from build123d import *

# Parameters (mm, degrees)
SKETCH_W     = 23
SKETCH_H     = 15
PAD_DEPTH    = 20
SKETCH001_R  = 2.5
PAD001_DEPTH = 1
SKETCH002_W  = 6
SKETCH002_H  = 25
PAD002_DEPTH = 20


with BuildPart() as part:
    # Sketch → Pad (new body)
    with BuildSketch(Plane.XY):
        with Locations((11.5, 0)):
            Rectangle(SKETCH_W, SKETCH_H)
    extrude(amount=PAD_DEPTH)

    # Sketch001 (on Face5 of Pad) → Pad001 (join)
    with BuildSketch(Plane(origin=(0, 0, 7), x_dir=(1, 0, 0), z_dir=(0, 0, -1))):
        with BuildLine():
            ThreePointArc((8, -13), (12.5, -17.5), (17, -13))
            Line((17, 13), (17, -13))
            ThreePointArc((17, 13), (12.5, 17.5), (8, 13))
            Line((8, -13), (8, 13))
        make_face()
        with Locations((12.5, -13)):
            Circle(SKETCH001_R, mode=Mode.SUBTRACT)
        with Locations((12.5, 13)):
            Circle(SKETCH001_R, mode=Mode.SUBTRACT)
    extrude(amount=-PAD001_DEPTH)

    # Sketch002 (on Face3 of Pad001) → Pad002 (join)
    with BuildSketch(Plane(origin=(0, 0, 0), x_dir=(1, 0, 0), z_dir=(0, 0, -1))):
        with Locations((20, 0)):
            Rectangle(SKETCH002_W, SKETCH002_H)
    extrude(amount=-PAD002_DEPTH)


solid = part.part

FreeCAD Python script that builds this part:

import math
import FreeCAD as App
import Part
import Sketcher
from FreeCAD import Vector
Q = App.Units.Quantity

doc = App.newDocument("Part")
params = doc.addObject("Spreadsheet::Sheet", "Params")
for row, (alias, value) in enumerate([
    ("sketch1_width", "23 mm"),
    ("sketch1_height", "15 mm"),
    ("pad1_length", "20 mm"),
    ("sketch2_diameter", "5 mm"),
    ("sketch2_radius", "4.5 mm"),
    ("sketch2_height", "26 mm"),
    ("pad2_length", "1 mm"),
    ("sketch3_width", "6 mm"),
    ("sketch3_height", "25 mm"),
    ("pad3_length", "20 mm"),
], start=1):
    params.set(f"A{row}", alias)
    params.set(f"B{row}", "=" + value)
    params.setAlias(f"B{row}", alias)

body = doc.addObject("PartDesign::Body", "Body")

sketch1 = body.newObject("Sketcher::SketchObject", "Sketch")
sketch1.AttachmentSupport = (doc.getObject("XY_Plane"), [""])
sketch1.MapMode = "FlatFace"
sketch1.addGeometry([
    Part.LineSegment(Vector(0, 8, 0), Vector(0, -8, 0)),
    Part.LineSegment(Vector(0, -8, 0), Vector(23, -8, 0)),
    Part.LineSegment(Vector(23, -8, 0), Vector(23, 8, 0)),
    Part.LineSegment(Vector(23, 8, 0), Vector(0, 8, 0)),
], False)
sketch1.addConstraint([
    Sketcher.Constraint("Coincident", 0, 2, 1, 1),
    Sketcher.Constraint("Coincident", 1, 2, 2, 1),
    Sketcher.Constraint("Coincident", 2, 2, 3, 1),
    Sketcher.Constraint("Coincident", 3, 2, 0, 1),
    Sketcher.Constraint("Vertical", 0),
    Sketcher.Constraint("Horizontal", 1),
    Sketcher.Constraint("Vertical", 2),
    Sketcher.Constraint("Horizontal", 3),
    Sketcher.Constraint("Symmetric", 0, 2, 3, 2, -1, 1),
    Sketcher.Constraint("DistanceX", 1, 1, 1, 2, Q("23 mm")),
    Sketcher.Constraint("DistanceY", 0, 2, 0, 1, Q("15 mm")),
])
sketch1.setExpression("Constraints[9]", "Params.sketch1_width")
sketch1.setExpression("Constraints[10]", "Params.sketch1_height")
pad1 = body.newObject("PartDesign::Pad", "Pad")
pad1.Profile = sketch1
pad1.setExpression("Length", "Params.pad1_length")

sketch2 = body.newObject("Sketcher::SketchObject", "Sketch001")
sketch2.AttachmentSupport = (doc.getObject("XY_Plane"), [""])
sketch2.MapMode = "FlatFace"
sketch2.AttachmentOffset = App.Placement(Vector(0, 0, 7), App.Rotation())
sketch2.addGeometry([
    Part.ArcOfCircle(Part.Circle(Vector(12.5, 13, 0), Vector(0, 0, 1), 4.5), math.radians(0), math.radians(180)),
    Part.LineSegment(Vector(17, 13, 0), Vector(17, -13, 0)),
    Part.ArcOfCircle(Part.Circle(Vector(12.5, -13, 0), Vector(0, 0, 1), 4.5), math.radians(180), math.radians(360)),
    Part.LineSegment(Vector(8, -13, 0), Vector(8, 13, 0)),
    Part.Circle(Vector(12.5, 13, 0), Vector(0, 0, 1), 2.5),
    Part.Circle(Vector(12.5, -13, 0), Vector(0, 0, 1), 2.5),
], False)
sketch2.addConstraint([
    Sketcher.Constraint("Tangent", 0, 1, 1, 1),
    Sketcher.Constraint("Tangent", 1, 2, 2, 2),
    Sketcher.Constraint("Tangent", 2, 1, 3, 1),
    Sketcher.Constraint("Tangent", 3, 2, 0, 2),
    Sketcher.Constraint("Vertical", 1),
    Sketcher.Constraint("Vertical", 3),
    Sketcher.Constraint("Coincident", 4, 3, 0, 3),
    Sketcher.Constraint("Coincident", 5, 3, 2, 3),
    Sketcher.Constraint("Equal", 4, 5),
    Sketcher.Constraint("Diameter", 4, Q("5 mm")),
    Sketcher.Constraint("Radius", 0, Q("4.5 mm")),
    Sketcher.Constraint("DistanceY", 1, 2, 1, 1, Q("26 mm")),
    Sketcher.Constraint("DistanceY", -1, 1, 0, 3, Q("13 mm")),
    Sketcher.Constraint("DistanceX", -1, 1, 0, 1, Q("17 mm")),
])
sketch2.setExpression("Constraints[9]", "Params.sketch2_diameter")
sketch2.setExpression("Constraints[10]", "Params.sketch2_radius")
sketch2.setExpression("Constraints[11]", "Params.sketch2_height")
pad2 = body.newObject("PartDesign::Pad", "Pad001")
pad2.Profile = sketch2
pad2.setExpression("Length", "Params.pad2_length")

sketch3 = body.newObject("Sketcher::SketchObject", "Sketch002")
sketch3.AttachmentSupport = (doc.getObject("XY_Plane"), [""])
sketch3.MapMode = "FlatFace"
sketch3.addGeometry([
    Part.LineSegment(Vector(17, -12, 0), Vector(17, 12, 0)),
    Part.LineSegment(Vector(17, 12, 0), Vector(23, 12, 0)),
    Part.LineSegment(Vector(23, 12, 0), Vector(23, -12, 0)),
    Part.LineSegment(Vector(23, -12, 0), Vector(17, -12, 0)),
], False)
sketch3.addConstraint([
    Sketcher.Constraint("Coincident", 0, 2, 1, 1),
    Sketcher.Constraint("Coincident", 1, 2, 2, 1),
    Sketcher.Constraint("Coincident", 2, 2, 3, 1),
    Sketcher.Constraint("Coincident", 3, 2, 0, 1),
    Sketcher.Constraint("Vertical", 0),
    Sketcher.Constraint("Horizontal", 1),
    Sketcher.Constraint("Vertical", 2),
    Sketcher.Constraint("Horizontal", 3),
    Sketcher.Constraint("DistanceX", 1, 1, 1, 2, Q("6 mm")),
    Sketcher.Constraint("DistanceY", 0, 1, 0, 2, Q("25 mm")),
    Sketcher.Constraint("DistanceX", -1, 1, 0, 2, Q("17 mm")),
    Sketcher.Constraint("DistanceY", -1, 1, 0, 2, Q("12.5 mm")),
])
sketch3.setExpression("Constraints[8]", "Params.sketch3_width")
sketch3.setExpression("Constraints[9]", "Params.sketch3_height")
pad3 = body.newObject("PartDesign::Pad", "Pad002")
pad3.Profile = sketch3
pad3.setExpression("Length", "Params.pad3_length")

doc.recompute()
